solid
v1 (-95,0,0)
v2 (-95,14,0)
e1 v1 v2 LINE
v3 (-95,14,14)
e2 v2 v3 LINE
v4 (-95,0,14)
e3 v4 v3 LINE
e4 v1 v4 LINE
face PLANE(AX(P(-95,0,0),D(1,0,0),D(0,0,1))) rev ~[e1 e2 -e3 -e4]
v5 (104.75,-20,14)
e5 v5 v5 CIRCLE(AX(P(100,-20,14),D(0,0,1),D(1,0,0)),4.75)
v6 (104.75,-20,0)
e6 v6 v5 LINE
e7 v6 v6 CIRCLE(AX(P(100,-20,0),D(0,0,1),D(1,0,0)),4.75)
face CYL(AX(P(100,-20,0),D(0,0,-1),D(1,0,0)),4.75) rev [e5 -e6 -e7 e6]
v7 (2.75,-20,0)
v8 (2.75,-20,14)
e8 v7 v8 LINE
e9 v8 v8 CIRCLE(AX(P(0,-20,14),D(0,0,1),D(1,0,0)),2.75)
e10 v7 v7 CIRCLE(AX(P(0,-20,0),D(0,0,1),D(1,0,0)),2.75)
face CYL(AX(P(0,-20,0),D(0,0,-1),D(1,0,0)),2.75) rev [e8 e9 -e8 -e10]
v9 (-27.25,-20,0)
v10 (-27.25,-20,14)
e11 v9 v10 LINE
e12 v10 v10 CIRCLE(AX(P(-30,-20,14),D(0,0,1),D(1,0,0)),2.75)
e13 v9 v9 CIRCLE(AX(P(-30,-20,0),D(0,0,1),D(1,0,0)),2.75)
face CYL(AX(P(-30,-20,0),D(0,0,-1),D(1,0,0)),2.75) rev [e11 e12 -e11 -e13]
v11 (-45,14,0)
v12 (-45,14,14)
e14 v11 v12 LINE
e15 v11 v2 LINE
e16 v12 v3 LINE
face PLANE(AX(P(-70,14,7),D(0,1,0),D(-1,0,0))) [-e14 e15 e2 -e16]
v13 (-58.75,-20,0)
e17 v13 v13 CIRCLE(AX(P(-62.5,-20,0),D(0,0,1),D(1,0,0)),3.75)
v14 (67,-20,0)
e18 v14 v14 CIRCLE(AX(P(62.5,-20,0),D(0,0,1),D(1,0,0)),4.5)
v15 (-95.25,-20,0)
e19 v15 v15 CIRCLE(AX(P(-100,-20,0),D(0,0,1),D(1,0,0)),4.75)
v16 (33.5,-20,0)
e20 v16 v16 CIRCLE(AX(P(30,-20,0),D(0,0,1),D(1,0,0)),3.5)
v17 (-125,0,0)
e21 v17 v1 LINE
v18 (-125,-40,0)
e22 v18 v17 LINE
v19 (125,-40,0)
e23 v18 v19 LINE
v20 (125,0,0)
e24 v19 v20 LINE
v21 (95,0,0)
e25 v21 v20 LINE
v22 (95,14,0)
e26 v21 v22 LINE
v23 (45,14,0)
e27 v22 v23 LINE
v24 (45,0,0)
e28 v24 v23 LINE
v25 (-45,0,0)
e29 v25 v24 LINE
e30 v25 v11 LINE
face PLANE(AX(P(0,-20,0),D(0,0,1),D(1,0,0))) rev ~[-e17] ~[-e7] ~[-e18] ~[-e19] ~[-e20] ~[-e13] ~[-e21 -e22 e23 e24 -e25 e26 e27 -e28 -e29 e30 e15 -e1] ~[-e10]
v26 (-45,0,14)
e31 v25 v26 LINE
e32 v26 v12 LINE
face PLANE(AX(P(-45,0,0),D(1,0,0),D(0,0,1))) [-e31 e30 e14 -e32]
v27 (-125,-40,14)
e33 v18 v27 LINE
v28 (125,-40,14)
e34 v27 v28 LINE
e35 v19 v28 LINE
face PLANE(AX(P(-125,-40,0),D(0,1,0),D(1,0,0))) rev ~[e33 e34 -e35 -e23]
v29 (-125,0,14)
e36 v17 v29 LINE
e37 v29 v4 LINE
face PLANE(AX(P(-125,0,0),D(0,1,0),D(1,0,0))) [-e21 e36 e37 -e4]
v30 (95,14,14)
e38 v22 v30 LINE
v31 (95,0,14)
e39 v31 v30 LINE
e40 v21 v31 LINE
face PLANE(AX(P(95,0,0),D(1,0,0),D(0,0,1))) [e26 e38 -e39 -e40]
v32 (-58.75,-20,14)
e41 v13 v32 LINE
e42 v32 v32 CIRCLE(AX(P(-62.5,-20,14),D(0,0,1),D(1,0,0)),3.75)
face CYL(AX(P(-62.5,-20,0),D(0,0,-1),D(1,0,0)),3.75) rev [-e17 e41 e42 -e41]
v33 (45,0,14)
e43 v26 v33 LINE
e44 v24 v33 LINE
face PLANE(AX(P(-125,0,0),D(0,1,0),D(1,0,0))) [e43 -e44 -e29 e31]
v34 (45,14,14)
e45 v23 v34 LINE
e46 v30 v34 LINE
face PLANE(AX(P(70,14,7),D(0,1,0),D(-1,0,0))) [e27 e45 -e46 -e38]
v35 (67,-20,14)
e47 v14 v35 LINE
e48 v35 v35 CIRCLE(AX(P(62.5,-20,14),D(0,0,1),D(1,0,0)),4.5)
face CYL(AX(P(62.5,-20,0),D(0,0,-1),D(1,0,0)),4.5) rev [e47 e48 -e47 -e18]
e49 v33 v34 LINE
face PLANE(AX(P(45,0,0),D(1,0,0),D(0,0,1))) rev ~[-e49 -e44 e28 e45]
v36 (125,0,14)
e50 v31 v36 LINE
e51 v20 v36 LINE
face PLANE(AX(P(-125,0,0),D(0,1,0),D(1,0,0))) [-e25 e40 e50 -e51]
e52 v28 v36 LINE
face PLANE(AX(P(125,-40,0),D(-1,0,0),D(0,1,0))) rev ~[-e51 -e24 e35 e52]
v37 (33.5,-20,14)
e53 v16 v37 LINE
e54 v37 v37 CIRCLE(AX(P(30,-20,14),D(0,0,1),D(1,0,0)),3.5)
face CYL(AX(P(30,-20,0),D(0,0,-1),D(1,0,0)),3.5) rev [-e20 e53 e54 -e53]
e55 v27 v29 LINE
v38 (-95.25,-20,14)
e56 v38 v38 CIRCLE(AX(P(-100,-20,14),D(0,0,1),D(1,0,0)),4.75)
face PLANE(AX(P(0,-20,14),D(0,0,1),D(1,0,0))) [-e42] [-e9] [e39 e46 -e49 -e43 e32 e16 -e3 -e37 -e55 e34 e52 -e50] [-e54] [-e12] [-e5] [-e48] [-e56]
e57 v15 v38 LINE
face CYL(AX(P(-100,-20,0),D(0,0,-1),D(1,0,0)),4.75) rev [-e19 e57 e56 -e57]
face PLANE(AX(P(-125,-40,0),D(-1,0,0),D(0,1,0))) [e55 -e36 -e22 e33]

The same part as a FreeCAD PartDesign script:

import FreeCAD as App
import Part
import Sketcher

V = App.Vector


def add_polygon(sketch, points):
    """Adds a closed chain of lines whose ends are joined by coincident constraints."""
    first, n = sketch.GeometryCount, len(points)
    for a, b in zip(points, points[1:] + points[:1]):
        sketch.addGeometry(Part.LineSegment(App.Vector(*a, 0), App.Vector(*b, 0)), False)
    for i in range(n):
        sketch.addConstraint(Sketcher.Constraint("Coincident", first + i, 2, first + (i + 1) % n, 1))

doc = App.newDocument("Part")
params = doc.addObject("Spreadsheet::Sheet", "Params")
for row, (alias, value) in enumerate([
    ("sketch1_diameter", "7 mm"),
    ("sketch1_diameter2", "9 mm"),
    ("sketch1_diameter3", "9.5 mm"),
    ("sketch1_diameter4", "7.5 mm"),
    ("sketch1_diameter5", "5.5 mm"),
    ("pad1_length", "14 mm"),
    ("sketch2_width", "50 mm"),
    ("sketch2_height", "14 mm"),
    ("pad2_length", "14 mm"),
], start=1):
    params.set(f"A{row}", alias)
    params.set(f"B{row}", "=" + value)
    params.setAlias(f"B{row}", alias)

body = doc.addObject("PartDesign::Body", "Body")

sketch1 = doc.addObject("Sketcher::SketchObject", "Sketch")
body.addObject(sketch1)
sketch1.AttachmentSupport = (doc.XY_Plane, [""])
sketch1.MapMode = "FlatFace"
add_polygon(sketch1, [(-125, 0), (-125, -40), (125, -40), (125, 0)])
sketch1.addGeometry(Part.Circle(V(-100, -20, 0), V(0, 0, 1), 4.75), False)
sketch1.addGeometry(Part.Circle(V(-62.5, -20, 0), V(0, 0, 1), 3.75), False)
sketch1.addGeometry(Part.Circle(V(-30, -20, 0), V(0, 0, 1), 2.75), False)
sketch1.addGeometry(Part.Circle(V(0, -20, 0), V(0, 0, 1), 2.75), False)
sketch1.addGeometry(Part.Circle(V(30, -20, 0), V(0, 0, 1), 3.5), False)
sketch1.addGeometry(Part.Circle(V(62.5, -20, 0), V(0, 0, 1), 4.5), False)
sketch1.addGeometry(Part.Circle(V(100, -20, 0), V(0, 0, 1), 4.75), False)
sketch1.addConstraint(Sketcher.Constraint("Vertical", 0))
sketch1.addConstraint(Sketcher.Constraint("Horizontal", 1))
sketch1.addConstraint(Sketcher.Constraint("Vertical", 2))
sketch1.addConstraint(Sketcher.Constraint("Horizontal", 3))
sketch1.addConstraint(Sketcher.Constraint("Equal", 6, 7))
sketch1.addConstraint(Sketcher.Constraint("Equal", 4, 10))
sketch1.addConstraint(Sketcher.Constraint("Symmetric", 2, 2, 3, 2, -1, 1))
sketch1.addConstraint(Sketcher.Constraint("Symmetric", 6, 3, 8, 3, -2))
sketch1.addConstraint(Sketcher.Constraint("Symmetric", 5, 3, 9, 3, -2))
sketch1.addConstraint(Sketcher.Constraint("Symmetric", 4, 3, 10, 3, -2))
sketch1.addConstraint(Sketcher.Constraint("PointOnObject", 7, 3, -2))
sketch1.addConstraint(Sketcher.Constraint("Horizontal", 4, 3, 5, 3))
sketch1.addConstraint(Sketcher.Constraint("Horizontal", 5, 3, 6, 3))
sketch1.addConstraint(Sketcher.Constraint("Horizontal", 6, 3, 7, 3))
sketch1.addConstraint(Sketcher.Constraint("Diameter", 8, 7.0))
sketch1.addConstraint(Sketcher.Constraint("Diameter", 9, 9.0))
sketch1.addConstraint(Sketcher.Constraint("Diameter", 4, 9.5))
sketch1.addConstraint(Sketcher.Constraint("Diameter", 5, 7.5))
sketch1.addConstraint(Sketcher.Constraint("Diameter", 6, 5.5))
sketch1.addConstraint(Sketcher.Constraint("DistanceX", 1, 1, 1, 2, 250.0))
sketch1.addConstraint(Sketcher.Constraint("DistanceY", 0, 2, 0, 1, 40.0))
sketch1.addConstraint(Sketcher.Constraint("DistanceX", 4, 3, -1, 1, 100.0))
sketch1.addConstraint(Sketcher.Constraint("DistanceY", 4, 3, -1, 1, 20.0))
sketch1.addConstraint(Sketcher.Constraint("DistanceX", 6, 3, -1, 1, 30.0))
sketch1.addConstraint(Sketcher.Constraint("DistanceX", 5, 3, 9, 3, 125.0))
sketch1.setExpression("Constraints[18]", "Params.sketch1_diameter")
sketch1.setExpression("Constraints[19]", "Params.sketch1_diameter2")
sketch1.setExpression("Constraints[20]", "Params.sketch1_diameter3")
sketch1.setExpression("Constraints[21]", "Params.sketch1_diameter4")
sketch1.setExpression("Constraints[22]", "Params.sketch1_diameter5")
pad1 = doc.addObject("PartDesign::Pad", "Pad")
body.addObject(pad1)
pad1.Profile = sketch1
pad1.setExpression("Length", "Params.pad1_length")

sketch2 = doc.addObject("Sketcher::SketchObject", "Sketch001")
body.addObject(sketch2)
sketch2.AttachmentSupport = (doc.XZ_Plane, [""])
sketch2.MapMode = "FlatFace"
add_polygon(sketch2, [(-45, 14), (-45, 0), (-95, 0), (-95, 14)])
add_polygon(sketch2, [(95, 14), (95, 0), (45, 0), (45, 14)])
sketch2.addConstraint(Sketcher.Constraint("Vertical", 0))
sketch2.addConstraint(Sketcher.Constraint("Horizontal", 1))
sketch2.addConstraint(Sketcher.Constraint("Vertical", 2))
sketch2.addConstraint(Sketcher.Constraint("Horizontal", 3))
sketch2.addConstraint(Sketcher.Constraint("Vertical", 4))
sketch2.addConstraint(Sketcher.Constraint("Horizontal", 5))
sketch2.addConstraint(Sketcher.Constraint("Vertical", 6))
sketch2.addConstraint(Sketcher.Constraint("Horizontal", 7))
sketch2.addConstraint(Sketcher.Constraint("Symmetric", 1, 2, 4, 2, -1, 1))
sketch2.addConstraint(Sketcher.Constraint("Symmetric", 0, 2, 5, 2, -2))
sketch2.addConstraint(Sketcher.Constraint("Horizontal", 3, 2, 6, 2))
sketch2.addConstraint(Sketcher.Constraint("DistanceX", 1, 2, 1, 1, 50.0))
sketch2.addConstraint(Sketcher.Constraint("DistanceY", 0, 2, 0, 1, 14.0))
sketch2.addConstraint(Sketcher.Constraint("DistanceX", 0, 2, -1, 1, 45.0))
sketch2.setExpression("Constraints[19]", "Params.sketch2_width")
sketch2.setExpression("Constraints[20]", "Params.sketch2_height")
pad2 = doc.addObject("PartDesign::Pad", "Pad001")
body.addObject(pad2)
pad2.Profile = sketch2
pad2.setExpression("Length", "Params.pad2_length")
pad2.Reversed = True

doc.recompute()
